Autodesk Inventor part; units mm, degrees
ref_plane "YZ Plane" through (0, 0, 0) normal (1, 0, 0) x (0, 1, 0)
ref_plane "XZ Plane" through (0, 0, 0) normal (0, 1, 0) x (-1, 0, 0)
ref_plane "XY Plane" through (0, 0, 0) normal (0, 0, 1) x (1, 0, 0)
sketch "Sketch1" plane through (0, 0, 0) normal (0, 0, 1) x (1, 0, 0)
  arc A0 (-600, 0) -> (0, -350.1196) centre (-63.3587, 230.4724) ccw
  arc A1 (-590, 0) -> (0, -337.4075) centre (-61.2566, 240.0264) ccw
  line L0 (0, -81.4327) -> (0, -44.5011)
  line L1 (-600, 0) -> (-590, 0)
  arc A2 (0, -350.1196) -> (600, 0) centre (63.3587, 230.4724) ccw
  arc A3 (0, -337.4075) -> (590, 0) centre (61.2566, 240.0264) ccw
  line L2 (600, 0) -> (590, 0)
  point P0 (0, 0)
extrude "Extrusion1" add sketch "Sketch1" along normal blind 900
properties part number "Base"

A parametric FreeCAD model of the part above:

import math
import FreeCAD as App
import Part
import Sketcher

doc = App.newDocument("Part")
params = doc.addObject("Spreadsheet::Sheet", "Params")
for row, (alias, value) in enumerate([
    ("sketch1_width", "10 mm"),
    ("pad1_length", "900 mm"),
], start=1):
    params.set(f"A{row}", alias)
    params.set(f"B{row}", "=" + value)
    params.setAlias(f"B{row}", alias)

body = doc.addObject("PartDesign::Body", "Body")

# Sketch on XY plane
sketch1 = body.newObject("Sketcher::SketchObject", "Sketch")
sketch1.AttachmentSupport = (doc.getObject("XY_Plane"), [""])
sketch1.MapMode = "FlatFace"
sketch1.addGeometry([
    Part.LineSegment(App.Vector(-590, 0, 0), App.Vector(-600, 0, 0)),  # 0
    Part.ArcOfCircle(Part.Circle(App.Vector(-63.3587, 230.4724, 0), App.Vector(0, 0, 1), 584.038879), math.radians(-156.757833), math.radians(-83.772085)),  # 1
    Part.ArcOfCircle(Part.Circle(App.Vector(63.3587, 230.4724, 0), App.Vector(0, 0, 1), 584.038865), math.radians(-96.227915), math.radians(-23.242167)),  # 2
    Part.LineSegment(App.Vector(600, 0, 0), App.Vector(590, 0, 0)),  # 3
    Part.ArcOfCircle(Part.Circle(App.Vector(61.2566, 240.0264, 0), App.Vector(0, 0, 1), 580.673988), math.radians(-96.055527), math.radians(-24.415973)),  # 4
    Part.ArcOfCircle(Part.Circle(App.Vector(-61.2566, 240.0264, 0), App.Vector(0, 0, 1), 580.673967), math.radians(-155.584027), math.radians(-83.944473)),  # 5
], False)
sketch1.addConstraint([
    Sketcher.Constraint("Coincident", 0, 2, 1, 1),
    Sketcher.Constraint("Coincident", 1, 2, 2, 1),
    Sketcher.Constraint("Coincident", 2, 2, 3, 1),
    Sketcher.Constraint("Coincident", 3, 2, 4, 2),
    Sketcher.Constraint("Coincident", 4, 1, 5, 2),
    Sketcher.Constraint("Coincident", 5, 1, 0, 1),
    Sketcher.Constraint("Horizontal", 0),
    Sketcher.Constraint("Horizontal", 3),
    Sketcher.Constraint("Equal", 1, 2),
    Sketcher.Constraint("Equal", 4, 5),
    Sketcher.Constraint("Symmetric", 1, 3, 2, 3, -2),
    Sketcher.Constraint("Symmetric", 4, 3, 5, 3, -2),
    Sketcher.Constraint("PointOnObject", 0, 2, -1),
    Sketcher.Constraint("PointOnObject", 3, 2, -1),
    Sketcher.Constraint("DistanceX", 0, 2, 0, 1, 10.0),
    Sketcher.Constraint("DistanceX", 0, 2, -1, 1, 600.0),
    Sketcher.Constraint("Radius", 4, 580.674),
    Sketcher.Constraint("Radius", 1, 584.0389),
    Sketcher.Constraint("DistanceY", 4, 1, 1, 3, 567.88),
    Sketcher.Constraint("DistanceY", 2, 3, 4, 3, 9.554),
])
sketch1.setExpression("Constraints[14]", "Params.sketch1_width")
pad1 = body.newObject("PartDesign::Pad", "Pad")
pad1.Profile = sketch1
pad1.setExpression("Length", "Params.pad1_length")

doc.recompute()
